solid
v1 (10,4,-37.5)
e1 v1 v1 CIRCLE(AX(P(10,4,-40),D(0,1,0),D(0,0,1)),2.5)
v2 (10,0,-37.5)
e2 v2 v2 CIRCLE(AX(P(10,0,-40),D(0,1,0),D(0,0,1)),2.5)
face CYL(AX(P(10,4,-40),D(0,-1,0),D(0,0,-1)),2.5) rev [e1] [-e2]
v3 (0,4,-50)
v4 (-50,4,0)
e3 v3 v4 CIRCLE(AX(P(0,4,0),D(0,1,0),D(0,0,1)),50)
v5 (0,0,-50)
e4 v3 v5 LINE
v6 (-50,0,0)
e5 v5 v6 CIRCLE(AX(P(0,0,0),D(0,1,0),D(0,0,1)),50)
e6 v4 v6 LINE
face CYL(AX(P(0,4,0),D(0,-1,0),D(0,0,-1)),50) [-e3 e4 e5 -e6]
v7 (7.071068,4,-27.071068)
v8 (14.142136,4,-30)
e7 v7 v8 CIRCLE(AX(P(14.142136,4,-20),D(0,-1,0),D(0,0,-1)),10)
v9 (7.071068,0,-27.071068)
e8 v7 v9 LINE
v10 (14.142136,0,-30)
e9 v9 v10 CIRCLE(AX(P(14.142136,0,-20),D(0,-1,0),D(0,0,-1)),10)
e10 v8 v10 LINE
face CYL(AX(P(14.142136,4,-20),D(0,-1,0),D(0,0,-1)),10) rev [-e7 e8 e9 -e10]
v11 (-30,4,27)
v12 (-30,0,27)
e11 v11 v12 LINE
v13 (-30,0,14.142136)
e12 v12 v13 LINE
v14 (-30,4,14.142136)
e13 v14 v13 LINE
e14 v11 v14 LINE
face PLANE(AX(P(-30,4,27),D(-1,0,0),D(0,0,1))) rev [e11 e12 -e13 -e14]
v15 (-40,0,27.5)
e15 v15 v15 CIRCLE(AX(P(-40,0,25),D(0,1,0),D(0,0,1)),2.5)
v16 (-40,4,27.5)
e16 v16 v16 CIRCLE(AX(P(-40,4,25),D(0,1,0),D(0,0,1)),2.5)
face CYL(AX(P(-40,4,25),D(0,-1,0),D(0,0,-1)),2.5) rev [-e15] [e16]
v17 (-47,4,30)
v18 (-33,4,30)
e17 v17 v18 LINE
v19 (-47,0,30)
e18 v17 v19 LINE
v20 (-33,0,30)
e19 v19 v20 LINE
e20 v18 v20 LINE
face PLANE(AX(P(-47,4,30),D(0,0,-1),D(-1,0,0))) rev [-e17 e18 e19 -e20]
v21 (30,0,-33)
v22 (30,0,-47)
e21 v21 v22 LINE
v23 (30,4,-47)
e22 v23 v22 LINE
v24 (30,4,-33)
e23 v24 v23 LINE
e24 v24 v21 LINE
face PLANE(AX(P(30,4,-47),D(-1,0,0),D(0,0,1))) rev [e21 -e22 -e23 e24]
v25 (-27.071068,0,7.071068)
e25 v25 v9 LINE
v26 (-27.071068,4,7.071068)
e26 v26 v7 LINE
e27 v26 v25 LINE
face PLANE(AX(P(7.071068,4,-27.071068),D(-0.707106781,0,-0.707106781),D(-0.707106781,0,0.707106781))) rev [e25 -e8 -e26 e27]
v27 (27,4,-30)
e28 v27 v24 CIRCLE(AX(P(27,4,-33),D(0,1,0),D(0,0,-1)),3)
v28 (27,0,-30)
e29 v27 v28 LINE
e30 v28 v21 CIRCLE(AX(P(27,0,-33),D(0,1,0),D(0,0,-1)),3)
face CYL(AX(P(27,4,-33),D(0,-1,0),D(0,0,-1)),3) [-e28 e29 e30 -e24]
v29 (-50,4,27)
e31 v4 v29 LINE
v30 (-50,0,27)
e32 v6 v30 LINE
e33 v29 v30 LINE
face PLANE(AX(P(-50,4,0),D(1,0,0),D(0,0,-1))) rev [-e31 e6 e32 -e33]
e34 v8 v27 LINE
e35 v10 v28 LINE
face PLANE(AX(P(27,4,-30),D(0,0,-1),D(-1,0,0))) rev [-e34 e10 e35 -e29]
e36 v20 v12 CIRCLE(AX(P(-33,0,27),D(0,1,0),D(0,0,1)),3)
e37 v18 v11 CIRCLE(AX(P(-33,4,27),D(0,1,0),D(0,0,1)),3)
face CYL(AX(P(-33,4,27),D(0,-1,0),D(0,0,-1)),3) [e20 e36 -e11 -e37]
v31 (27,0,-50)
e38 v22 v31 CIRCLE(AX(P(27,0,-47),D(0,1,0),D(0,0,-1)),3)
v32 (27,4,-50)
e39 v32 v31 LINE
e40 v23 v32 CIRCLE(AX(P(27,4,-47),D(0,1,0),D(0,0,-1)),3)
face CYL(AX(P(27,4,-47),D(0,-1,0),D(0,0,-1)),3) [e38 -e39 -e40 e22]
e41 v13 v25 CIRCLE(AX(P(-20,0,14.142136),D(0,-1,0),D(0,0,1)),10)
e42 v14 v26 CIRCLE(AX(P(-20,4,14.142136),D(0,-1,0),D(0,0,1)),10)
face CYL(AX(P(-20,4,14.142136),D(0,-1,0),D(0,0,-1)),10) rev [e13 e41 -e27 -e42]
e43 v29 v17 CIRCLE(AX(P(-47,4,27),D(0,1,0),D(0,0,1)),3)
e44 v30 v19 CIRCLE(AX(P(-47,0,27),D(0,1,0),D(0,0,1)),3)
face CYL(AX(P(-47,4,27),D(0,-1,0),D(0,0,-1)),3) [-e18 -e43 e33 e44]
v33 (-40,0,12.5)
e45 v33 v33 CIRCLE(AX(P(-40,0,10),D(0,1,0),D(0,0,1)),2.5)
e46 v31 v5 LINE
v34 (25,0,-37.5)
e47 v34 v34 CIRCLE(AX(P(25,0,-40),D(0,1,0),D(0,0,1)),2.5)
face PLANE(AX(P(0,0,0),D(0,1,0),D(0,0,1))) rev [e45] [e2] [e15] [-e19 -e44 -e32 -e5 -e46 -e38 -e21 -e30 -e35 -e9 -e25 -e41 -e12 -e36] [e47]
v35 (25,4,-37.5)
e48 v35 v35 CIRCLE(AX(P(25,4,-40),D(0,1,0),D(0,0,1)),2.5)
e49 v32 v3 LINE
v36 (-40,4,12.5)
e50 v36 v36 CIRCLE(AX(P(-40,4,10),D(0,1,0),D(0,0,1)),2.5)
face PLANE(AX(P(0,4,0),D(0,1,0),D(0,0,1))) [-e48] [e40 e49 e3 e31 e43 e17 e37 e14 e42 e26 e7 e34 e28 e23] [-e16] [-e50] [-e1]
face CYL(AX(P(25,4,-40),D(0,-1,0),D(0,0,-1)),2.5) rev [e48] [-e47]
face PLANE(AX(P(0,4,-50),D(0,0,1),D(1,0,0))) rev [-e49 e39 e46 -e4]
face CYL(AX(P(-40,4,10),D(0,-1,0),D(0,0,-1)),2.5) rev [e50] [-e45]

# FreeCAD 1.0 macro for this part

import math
import FreeCAD as App
import Part
import Sketcher

doc = App.newDocument("Part")
body = doc.addObject("PartDesign::Body", "Body")

# Sketch on XZ plane
sketch1 = doc.addObject("Sketcher::SketchObject", "Sketch")
body.addObject(sketch1)
sketch1.AttachmentSupport = (doc.XZ_Plane, [""])
sketch1.MapMode = "FlatFace"
sketch1.addGeometry(Part.LineSegment(App.Vector(-50, 0, 0), App.Vector(-50, 27, 0)), False)
sketch1.addGeometry(Part.ArcOfCircle(Part.Circle(App.Vector(-47, 27, 0), App.Vector(0, 0, 1), 3), math.radians(90), math.radians(180)), False)
sketch1.addGeometry(Part.LineSegment(App.Vector(-47, 30, 0), App.Vector(-33, 30, 0)), False)
sketch1.addGeometry(Part.ArcOfCircle(Part.Circle(App.Vector(-33, 27, 0), App.Vector(0, 0, 1), 3), math.radians(0), math.radians(90)), False)
sketch1.addGeometry(Part.LineSegment(App.Vector(-30, 27, 0), App.Vector(-30, 14.1, 0)), False)
sketch1.addGeometry(Part.ArcOfCircle(Part.Circle(App.Vector(-20, 14.1, 0), App.Vector(0, 0, 1), 10), math.radians(180), math.radians(225)), False)
sketch1.addGeometry(Part.LineSegment(App.Vector(-27.1, 7.1, 0), App.Vector(7.1, -27.1, 0)), False)
sketch1.addGeometry(Part.ArcOfCircle(Part.Circle(App.Vector(14.1, -20, 0), App.Vector(0, 0, 1), 10), math.radians(-135), math.radians(-90)), False)
sketch1.addGeometry(Part.LineSegment(App.Vector(14.1, -30, 0), App.Vector(27, -30, 0)), False)
sketch1.addGeometry(Part.ArcOfCircle(Part.Circle(App.Vector(27, -33, 0), App.Vector(0, 0, 1), 3), math.radians(0), math.radians(90)), False)
sketch1.addGeometry(Part.LineSegment(App.Vector(30, -33, 0), App.Vector(30, -47, 0)), False)
sketch1.addGeometry(Part.ArcOfCircle(Part.Circle(App.Vector(27, -47, 0), App.Vector(0, 0, 1), 3), math.radians(-90), math.radians(0)), False)
sketch1.addGeometry(Part.LineSegment(App.Vector(27, -50, 0), App.Vector(0, -50, 0)), False)
sketch1.addGeometry(Part.ArcOfCircle(Part.Circle(App.Vector(0, 0, 0), App.Vector(0, 0, 1), 50), math.radians(-180), math.radians(-90)), False)
sketch1.addGeometry(Part.Circle(App.Vector(-40, 25, 0), App.Vector(0, 0, 1), 2.5), False)
sketch1.addGeometry(Part.Circle(App.Vector(-40, 10, 0), App.Vector(0, 0, 1), 2.5), False)
sketch1.addGeometry(Part.Circle(App.Vector(10, -40, 0), App.Vector(0, 0, 1), 2.5), False)
sketch1.addGeometry(Part.Circle(App.Vector(25, -40, 0), App.Vector(0, 0, 1), 2.5), False)
sketch1.addConstraint(Sketcher.Constraint("Tangent", 0, 2, 1, 2))
sketch1.addConstraint(Sketcher.Constraint("Tangent", 1, 1, 2, 1))
sketch1.addConstraint(Sketcher.Constraint("Tangent", 2, 2, 3, 2))
sketch1.addConstraint(Sketcher.Constraint("Tangent", 3, 1, 4, 1))
sketch1.addConstraint(Sketcher.Constraint("Tangent", 4, 2, 5, 1))
sketch1.addConstraint(Sketcher.Constraint("Tangent", 5, 2, 6, 1))
sketch1.addConstraint(Sketcher.Constraint("Tangent", 6, 2, 7, 1))
sketch1.addConstraint(Sketcher.Constraint("Tangent", 7, 2, 8, 1))
sketch1.addConstraint(Sketcher.Constraint("Tangent", 8, 2, 9, 2))
sketch1.addConstraint(Sketcher.Constraint("Tangent", 9, 1, 10, 1))
sketch1.addConstraint(Sketcher.Constraint("Tangent", 10, 2, 11, 2))
sketch1.addConstraint(Sketcher.Constraint("Tangent", 11, 1, 12, 1))
sketch1.addConstraint(Sketcher.Constraint("Tangent", 12, 2, 13, 2))
sketch1.addConstraint(Sketcher.Constraint("Tangent", 13, 1, 0, 1))
sketch1.addConstraint(Sketcher.Constraint("Vertical", 0))
sketch1.addConstraint(Sketcher.Constraint("Horizontal", 2))
sketch1.addConstraint(Sketcher.Constraint("Vertical", 4))
sketch1.addConstraint(Sketcher.Constraint("Horizontal", 8))
sketch1.addConstraint(Sketcher.Constraint("Vertical", 10))
sketch1.addConstraint(Sketcher.Constraint("Horizontal", 12))
sketch1.addConstraint(Sketcher.Constraint("Coincident", 13, 3, -1, 1))
sketch1.addConstraint(Sketcher.Constraint("Equal", 1, 3))
sketch1.addConstraint(Sketcher.Constraint("Equal", 5, 7))
sketch1.addConstraint(Sketcher.Constraint("Equal", 3, 9))
sketch1.addConstraint(Sketcher.Constraint("Equal", 9, 11))
sketch1.addConstraint(Sketcher.Constraint("Equal", 14, 15))
sketch1.addConstraint(Sketcher.Constraint("Equal", 15, 16))
sketch1.addConstraint(Sketcher.Constraint("Equal", 16, 17))
sketch1.addConstraint(Sketcher.Constraint("Horizontal", 16, 3, 17, 3))
sketch1.addConstraint(Sketcher.Constraint("Vertical", 14, 3, 15, 3))
sketch1.addConstraint(Sketcher.Constraint("Equal", 12, 0))
sketch1.addConstraint(Sketcher.Constraint("Equal", 8, 4))
sketch1.addConstraint(Sketcher.Constraint("Equal", 2, 10))
sketch1.addConstraint(Sketcher.Constraint("Diameter", 14, 5.0))
sketch1.addConstraint(Sketcher.Constraint("Radius", 1, 3.0))
sketch1.addConstraint(Sketcher.Constraint("Radius", 5, 10.0))
sketch1.addConstraint(Sketcher.Constraint("Radius", 13, 50.0))
sketch1.addConstraint(Sketcher.Constraint("DistanceX", 2, 1, 2, 2, 14.0))
sketch1.addConstraint(Sketcher.Constraint("DistanceX", 12, 2, 12, 1, 27.0))
sketch1.addConstraint(Sketcher.Constraint("DistanceX", 14, 3, -1, 1, 40.0))
sketch1.addConstraint(Sketcher.Constraint("DistanceY", -1, 1, 14, 3, 25.0))
sketch1.addConstraint(Sketcher.Constraint("DistanceY", -1, 1, 15, 3, 10.0))
sketch1.addConstraint(Sketcher.Constraint("DistanceX", -1, 1, 16, 3, 10.0))
sketch1.addConstraint(Sketcher.Constraint("DistanceY", 16, 3, -1, 1, 40.0))
sketch1.addConstraint(Sketcher.Constraint("DistanceX", -1, 1, 17, 3, 25.0))
sketch1.addConstraint(Sketcher.Constraint("Distance", 6, 48.284271))
pad1 = doc.addObject("PartDesign::Pad", "Pad")
body.addObject(pad1)
pad1.Profile = sketch1
pad1.Length = 4
pad1.Reversed = True

doc.recompute()
